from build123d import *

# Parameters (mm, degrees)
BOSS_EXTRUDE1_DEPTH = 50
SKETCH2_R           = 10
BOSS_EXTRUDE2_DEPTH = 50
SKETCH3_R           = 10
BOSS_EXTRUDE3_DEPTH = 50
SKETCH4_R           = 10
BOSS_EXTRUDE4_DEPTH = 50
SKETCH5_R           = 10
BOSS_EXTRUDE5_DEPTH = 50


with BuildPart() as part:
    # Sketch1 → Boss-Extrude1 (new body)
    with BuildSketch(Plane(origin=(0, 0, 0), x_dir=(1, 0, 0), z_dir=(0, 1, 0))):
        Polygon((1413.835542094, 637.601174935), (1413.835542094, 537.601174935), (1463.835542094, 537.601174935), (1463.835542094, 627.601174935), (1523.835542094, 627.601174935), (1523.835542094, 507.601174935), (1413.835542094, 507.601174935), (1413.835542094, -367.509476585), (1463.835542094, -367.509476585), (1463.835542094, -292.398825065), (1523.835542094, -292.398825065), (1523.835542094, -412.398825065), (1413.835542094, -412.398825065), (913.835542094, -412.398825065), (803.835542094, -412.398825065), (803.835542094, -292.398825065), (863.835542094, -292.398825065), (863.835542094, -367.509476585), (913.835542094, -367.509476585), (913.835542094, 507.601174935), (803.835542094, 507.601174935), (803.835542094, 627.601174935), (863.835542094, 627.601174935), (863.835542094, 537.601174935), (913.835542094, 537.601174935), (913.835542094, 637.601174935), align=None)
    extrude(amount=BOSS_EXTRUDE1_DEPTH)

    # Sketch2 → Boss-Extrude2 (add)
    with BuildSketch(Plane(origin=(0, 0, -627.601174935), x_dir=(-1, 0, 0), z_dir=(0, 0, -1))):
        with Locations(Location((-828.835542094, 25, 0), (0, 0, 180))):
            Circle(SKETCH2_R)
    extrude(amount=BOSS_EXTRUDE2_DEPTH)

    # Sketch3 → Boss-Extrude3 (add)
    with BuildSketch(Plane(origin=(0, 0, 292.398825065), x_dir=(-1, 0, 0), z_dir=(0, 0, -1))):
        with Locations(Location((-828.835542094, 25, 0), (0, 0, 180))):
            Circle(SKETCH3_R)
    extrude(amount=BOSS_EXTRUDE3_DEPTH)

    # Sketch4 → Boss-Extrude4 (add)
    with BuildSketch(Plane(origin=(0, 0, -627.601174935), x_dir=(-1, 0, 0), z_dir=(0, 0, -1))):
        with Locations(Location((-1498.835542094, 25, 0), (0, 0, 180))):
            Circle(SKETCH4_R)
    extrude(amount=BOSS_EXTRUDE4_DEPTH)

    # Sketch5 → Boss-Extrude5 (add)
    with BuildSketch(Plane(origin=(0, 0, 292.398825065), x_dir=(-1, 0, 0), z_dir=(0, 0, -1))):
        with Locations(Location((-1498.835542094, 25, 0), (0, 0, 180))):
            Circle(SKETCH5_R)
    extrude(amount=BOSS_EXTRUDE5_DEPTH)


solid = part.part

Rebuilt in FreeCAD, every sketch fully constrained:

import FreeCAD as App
import Part
import Sketcher

V = App.Vector
Q = App.Units.Quantity

doc = App.newDocument("Part")
body = doc.addObject("PartDesign::Body", "Body")

sketch1 = body.newObject("Sketcher::SketchObject", "Sketch")
sketch1.AttachmentSupport = (doc.getObject("XZ_Plane"), [""])
sketch1.MapMode = "FlatFace"
sketch1.addGeometry([
    Part.LineSegment(V(1414, -538, 0), V(1414, -638, 0)),
    Part.LineSegment(V(1414, -638, 0), V(914, -638, 0)),
    Part.LineSegment(V(914, -638, 0), V(914, -538, 0)),
    Part.LineSegment(V(914, -538, 0), V(864, -538, 0)),
    Part.LineSegment(V(864, -538, 0), V(864, -628, 0)),
    Part.LineSegment(V(864, -628, 0), V(804, -628, 0)),
    Part.LineSegment(V(804, -628, 0), V(804, -508, 0)),
    Part.LineSegment(V(804, -508, 0), V(914, -508, 0)),
    Part.LineSegment(V(914, -508, 0), V(914, 368, 0)),
    Part.LineSegment(V(914, 368, 0), V(864, 368, 0)),
    Part.LineSegment(V(864, 368, 0), V(864, 292, 0)),
    Part.LineSegment(V(864, 292, 0), V(804, 292, 0)),
    Part.LineSegment(V(804, 292, 0), V(804, 412, 0)),
    Part.LineSegment(V(804, 412, 0), V(1524, 412, 0)),
    Part.LineSegment(V(1524, 412, 0), V(1524, 292, 0)),
    Part.LineSegment(V(1524, 292, 0), V(1464, 292, 0)),
    Part.LineSegment(V(1464, 292, 0), V(1464, 368, 0)),
    Part.LineSegment(V(1464, 368, 0), V(1414, 368, 0)),
    Part.LineSegment(V(1414, 368, 0), V(1414, -508, 0)),
    Part.LineSegment(V(1414, -508, 0), V(1524, -508, 0)),
    Part.LineSegment(V(1524, -508, 0), V(1524, -628, 0)),
    Part.LineSegment(V(1524, -628, 0), V(1464, -628, 0)),
    Part.LineSegment(V(1464, -628, 0), V(1464, -538, 0)),
    Part.LineSegment(V(1464, -538, 0), V(1414, -538, 0)),
], False)
sketch1.addConstraint([
    Sketcher.Constraint("Coincident", 0, 2, 1, 1),
    Sketcher.Constraint("Coincident", 1, 2, 2, 1),
    Sketcher.Constraint("Coincident", 2, 2, 3, 1),
    Sketcher.Constraint("Coincident", 3, 2, 4, 1),
    Sketcher.Constraint("Coincident", 4, 2, 5, 1),
    Sketcher.Constraint("Coincident", 5, 2, 6, 1),
    Sketcher.Constraint("Coincident", 6, 2, 7, 1),
    Sketcher.Constraint("Coincident", 7, 2, 8, 1),
    Sketcher.Constraint("Coincident", 8, 2, 9, 1),
    Sketcher.Constraint("Coincident", 9, 2, 10, 1),
    Sketcher.Constraint("Coincident", 10, 2, 11, 1),
    Sketcher.Constraint("Coincident", 11, 2, 12, 1),
    Sketcher.Constraint("Coincident", 12, 2, 13, 1),
    Sketcher.Constraint("Coincident", 13, 2, 14, 1),
    Sketcher.Constraint("Coincident", 14, 2, 15, 1),
    Sketcher.Constraint("Coincident", 15, 2, 16, 1),
    Sketcher.Constraint("Coincident", 16, 2, 17, 1),
    Sketcher.Constraint("Coincident", 17, 2, 18, 1),
    Sketcher.Constraint("Coincident", 18, 2, 19, 1),
    Sketcher.Constraint("Coincident", 19, 2, 20, 1),
    Sketcher.Constraint("Coincident", 20, 2, 21, 1),
    Sketcher.Constraint("Coincident", 21, 2, 22, 1),
    Sketcher.Constraint("Coincident", 22, 2, 23, 1),
    Sketcher.Constraint("Coincident", 23, 2, 0, 1),
    Sketcher.Constraint("Vertical", 0),
    Sketcher.Constraint("Horizontal", 1),
    Sketcher.Constraint("Vertical", 2),
    Sketcher.Constraint("Horizontal", 3),
    Sketcher.Constraint("Vertical", 4),
    Sketcher.Constraint("Horizontal", 5),
    Sketcher.Constraint("Vertical", 6),
    Sketcher.Constraint("Horizontal", 7),
    Sketcher.Constraint("Vertical", 8),
    Sketcher.Constraint("Horizontal", 9),
    Sketcher.Constraint("Vertical", 10),
    Sketcher.Constraint("Horizontal", 11),
    Sketcher.Constraint("Vertical", 12),
    Sketcher.Constraint("Horizontal", 13),
    Sketcher.Constraint("Vertical", 14),
    Sketcher.Constraint("Horizontal", 15),
    Sketcher.Constraint("Vertical", 16),
    Sketcher.Constraint("Horizontal", 17),
    Sketcher.Constraint("Vertical", 18),
    Sketcher.Constraint("Horizontal", 19),
    Sketcher.Constraint("Vertical", 20),
    Sketcher.Constraint("Horizontal", 21),
    Sketcher.Constraint("Vertical", 22),
    Sketcher.Constraint("Horizontal", 23),
    Sketcher.Constraint("Horizontal", 11, 2, 14, 2),
    Sketcher.Constraint("Horizontal", 9, 2, 16, 2),
    Sketcher.Constraint("Horizontal", 7, 2, 18, 2),
    Sketcher.Constraint("Horizontal", 5, 2, 20, 2),
    Sketcher.Constraint("Horizontal", 3, 2, 22, 2),
    Sketcher.Constraint("Vertical", 2, 2, 7, 2),
    Sketcher.Constraint("Vertical", 4, 2, 9, 2),
    Sketcher.Constraint("Vertical", 6, 2, 11, 2),
    Sketcher.Constraint("Vertical", 0, 2, 17, 2),
    Sketcher.Constraint("Vertical", 14, 2, 19, 2),
    Sketcher.Constraint("Vertical", 16, 2, 21, 2),
    Sketcher.Constraint("Equal", 11, 15),
    Sketcher.Constraint("Equal", 9, 17),
    Sketcher.Constraint("Equal", 6, 12),
    Sketcher.Constraint("DistanceX", 1, 2, 1, 1, Q("500 mm")),
    Sketcher.Constraint("DistanceX", 3, 2, 3, 1, Q("50 mm")),
    Sketcher.Constraint("DistanceX", 5, 2, 5, 1, Q("60 mm")),
    Sketcher.Constraint("DistanceY", 0, 2, 0, 1, Q("100 mm")),
    Sketcher.Constraint("DistanceY", 4, 2, 4, 1, Q("90 mm")),
    Sketcher.Constraint("DistanceY", 6, 1, 6, 2, Q("120 mm")),
    Sketcher.Constraint("DistanceY", 7, 2, 10, 2, Q("800 mm")),
    Sketcher.Constraint("DistanceY", 8, 1, 8, 2, Q("875.110652 mm")),
    Sketcher.Constraint("DistanceX", -1, 1, 0, 2, Q("1413.835542 mm")),
    Sketcher.Constraint("DistanceY", 0, 2, -1, 1, Q("637.601175 mm")),
])
pad1 = body.newObject("PartDesign::Pad", "Pad")
pad1.Profile = sketch1
pad1.Length = 50
pad1.Reversed = True

sketch2 = body.newObject("Sketcher::SketchObject", "Sketch001")
sketch2.AttachmentSupport = (doc.getObject("XY_Plane"), [""])
sketch2.MapMode = "FlatFace"
sketch2.AttachmentOffset = App.Placement(V(0, 0, -627.601175), App.Rotation())
sketch2.addGeometry(Part.Circle(V(829, 25, 0), V(0, 0, 1), 10), False)
sketch2.addConstraint([
    Sketcher.Constraint("Diameter", 0, Q("20 mm")),
    Sketcher.Constraint("DistanceY", -1, 1, 0, 3, Q("25 mm")),
    Sketcher.Constraint("DistanceX", -1, 1, 0, 3, Q("828.835542 mm")),
])
pad2 = body.newObject("PartDesign::Pad", "Pad001")
pad2.Profile = sketch2
pad2.Length = 50
pad2.Reversed = True

sketch3 = body.newObject("Sketcher::SketchObject", "Sketch002")
sketch3.AttachmentSupport = (doc.getObject("XY_Plane"), [""])
sketch3.MapMode = "FlatFace"
sketch3.AttachmentOffset = App.Placement(V(0, 0, 292.398825), App.Rotation())
sketch3.addGeometry(Part.Circle(V(829, 25, 0), V(0, 0, 1), 10), False)
sketch3.addConstraint([
    Sketcher.Constraint("Diameter", 0, Q("20 mm")),
    Sketcher.Constraint("DistanceY", -1, 1, 0, 3, Q("25 mm")),
    Sketcher.Constraint("DistanceX", -1, 1, 0, 3, Q("828.835542 mm")),
])
pad3 = body.newObject("PartDesign::Pad", "Pad002")
pad3.Profile = sketch3
pad3.Length = 50
pad3.Reversed = True

sketch4 = body.newObject("Sketcher::SketchObject", "Sketch003")
sketch4.AttachmentSupport = (doc.getObject("XY_Plane"), [""])
sketch4.MapMode = "FlatFace"
sketch4.AttachmentOffset = App.Placement(V(0, 0, -627.601175), App.Rotation())
sketch4.addGeometry(Part.Circle(V(1499, 25, 0), V(0, 0, 1), 10), False)
sketch4.addConstraint([
    Sketcher.Constraint("Diameter", 0, Q("20 mm")),
    Sketcher.Constraint("DistanceY", -1, 1, 0, 3, Q("25 mm")),
    Sketcher.Constraint("DistanceX", -1, 1, 0, 3, Q("1498.835542 mm")),
])
pad4 = body.newObject("PartDesign::Pad", "Pad003")
pad4.Profile = sketch4
pad4.Length = 50
pad4.Reversed = True

sketch5 = body.newObject("Sketcher::SketchObject", "Sketch004")
sketch5.AttachmentSupport = (doc.getObject("XY_Plane"), [""])
sketch5.MapMode = "FlatFace"
sketch5.AttachmentOffset = App.Placement(V(0, 0, 292.398825), App.Rotation())
sketch5.addGeometry(Part.Circle(V(1499, 25, 0), V(0, 0, 1), 10), False)
sketch5.addConstraint([
    Sketcher.Constraint("Diameter", 0, Q("20 mm")),
    Sketcher.Constraint("DistanceY", -1, 1, 0, 3, Q("25 mm")),
    Sketcher.Constraint("DistanceX", -1, 1, 0, 3, Q("1498.835542 mm")),
])
pad5 = body.newObject("PartDesign::Pad", "Pad004")
pad5.Profile = sketch5
pad5.Length = 50
pad5.Reversed = True

doc.recompute()
